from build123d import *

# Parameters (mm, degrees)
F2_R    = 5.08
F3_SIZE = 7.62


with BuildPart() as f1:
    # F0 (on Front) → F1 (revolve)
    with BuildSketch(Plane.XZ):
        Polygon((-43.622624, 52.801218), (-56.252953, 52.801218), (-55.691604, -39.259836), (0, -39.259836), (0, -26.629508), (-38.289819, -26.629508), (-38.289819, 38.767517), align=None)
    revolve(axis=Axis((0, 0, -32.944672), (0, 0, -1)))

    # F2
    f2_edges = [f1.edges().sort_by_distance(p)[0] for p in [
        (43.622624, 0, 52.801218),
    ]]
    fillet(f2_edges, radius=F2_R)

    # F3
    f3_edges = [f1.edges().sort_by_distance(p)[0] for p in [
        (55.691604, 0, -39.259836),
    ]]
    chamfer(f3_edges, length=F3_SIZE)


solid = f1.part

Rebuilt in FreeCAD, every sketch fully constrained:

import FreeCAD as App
import Part
import Sketcher
from FreeCAD import Vector
Q = App.Units.Quantity


def edges_at(feature, points):
    """Names of the edges that pass closest to the given points."""
    edges = feature.Shape.Edges
    near = lambda p: min(range(len(edges)), key=lambda i: edges[i].distToShape(Part.Vertex(*p))[0])
    return sorted({f"Edge{near(p) + 1}" for p in points})


def add_polygon(sketch, points):
    """Adds a closed chain of lines whose ends are joined by coincident constraints."""
    first, n = sketch.GeometryCount, len(points)
    for a, b in zip(points, points[1:] + points[:1]):
        sketch.addGeometry(Part.LineSegment(App.Vector(*a, 0), App.Vector(*b, 0)), False)
    for i in range(n):
        sketch.addConstraint(Sketcher.Constraint("Coincident", first + i, 2, first + (i + 1) % n, 1))

doc = App.newDocument("Part")
body = doc.addObject("PartDesign::Body", "Body")

# Sketch on XZ plane
sketch1 = doc.addObject("Sketcher::SketchObject", "Sketch")
body.addObject(sketch1)
sketch1.AttachmentSupport = (doc.XZ_Plane, [""])
sketch1.MapMode = "FlatFace"
add_polygon(sketch1, [(-43.622624, 52.801218), (-56.252953, 52.801218), (-55.691604, -39.259836), (0, -39.259836), (0, -26.629508), (-38.289819, -26.629508), (-38.289819, 38.767517)])  # lines 0-6
sketch1.addConstraint(Sketcher.Constraint("Horizontal", 0))
sketch1.addConstraint(Sketcher.Constraint("Horizontal", 2))
sketch1.addConstraint(Sketcher.Constraint("Vertical", 3))
sketch1.addConstraint(Sketcher.Constraint("Horizontal", 4))
sketch1.addConstraint(Sketcher.Constraint("Vertical", 5))
sketch1.addConstraint(Sketcher.Constraint("PointOnObject", 2, 2, -2))
sketch1.addConstraint(Sketcher.Constraint("Equal", 0, 3))
sketch1.addConstraint(Sketcher.Constraint("DistanceX", 0, 2, 0, 1, 12.630329))
sketch1.addConstraint(Sketcher.Constraint("DistanceX", 4, 2, 4, 1, 38.289819))
sketch1.addConstraint(Sketcher.Constraint("DistanceY", 5, 2, 0, 2, 14.033701))
sketch1.addConstraint(Sketcher.Constraint("Distance", 6, 15.01278))
sketch1.addConstraint(Sketcher.Constraint("DistanceX", 2, 1, 2, 2, 55.691604))
sketch1.addConstraint(Sketcher.Constraint("DistanceY", 5, 1, 5, 2, 65.397025))
sketch1.addConstraint(Sketcher.Constraint("DistanceY", 3, 2, -1, 1, 26.629508))
revolution = doc.addObject("PartDesign::Revolution", "Revolution")
body.addObject(revolution)
revolution.Profile = sketch1
revolution.ReferenceAxis = (sketch1, ["V_Axis"])
revolution.Angle = 360
doc.recompute()

fillet = doc.addObject("PartDesign::Fillet", "Fillet")
body.addObject(fillet)
fillet.Base = (revolution, edges_at(revolution, [(43.623, 0, 52.801)]))
fillet.Radius = Q("0.2 in")
doc.recompute()

chamfer = doc.addObject("PartDesign::Chamfer", "Chamfer")
body.addObject(chamfer)
chamfer.Base = (fillet, edges_at(fillet, [(55.692, 0, -39.26)]))
chamfer.Size = Q("0.3 in")

doc.recompute()
